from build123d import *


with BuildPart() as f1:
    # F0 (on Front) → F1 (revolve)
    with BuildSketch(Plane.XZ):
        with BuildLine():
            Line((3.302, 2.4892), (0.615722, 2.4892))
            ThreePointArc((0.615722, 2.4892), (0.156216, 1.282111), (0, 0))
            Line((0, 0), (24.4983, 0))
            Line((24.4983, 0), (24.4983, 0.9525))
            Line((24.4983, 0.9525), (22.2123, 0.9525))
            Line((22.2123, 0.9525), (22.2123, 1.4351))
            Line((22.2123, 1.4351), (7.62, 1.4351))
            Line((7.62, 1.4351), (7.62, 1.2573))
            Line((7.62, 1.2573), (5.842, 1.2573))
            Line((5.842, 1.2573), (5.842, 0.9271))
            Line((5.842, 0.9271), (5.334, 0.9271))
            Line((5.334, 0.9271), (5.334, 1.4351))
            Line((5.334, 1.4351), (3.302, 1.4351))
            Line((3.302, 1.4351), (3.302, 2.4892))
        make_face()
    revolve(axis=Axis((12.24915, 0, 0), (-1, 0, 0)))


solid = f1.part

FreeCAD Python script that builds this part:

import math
import FreeCAD as App
import Part
import Sketcher
from FreeCAD import Vector
Q = App.Units.Quantity

doc = App.newDocument("Part")
params = doc.addObject("Spreadsheet::Sheet", "Params")
for row, (alias, value) in enumerate([
    ("sketch1_width", "0.09 in"),
    ("sketch1_width2", "0.07 in"),
    ("sketch1_width3", "0.02 in"),
    ("sketch1_width4", "0.08 in"),
    ("sketch1_height", "0.019 in"),
    ("revolution_angle", "360 deg"),
], start=1):
    params.set(f"A{row}", alias)
    params.set(f"B{row}", "=" + value)
    params.setAlias(f"B{row}", alias)

body = doc.addObject("PartDesign::Body", "Body")

# Sketch on XZ plane
sketch1 = body.newObject("Sketcher::SketchObject", "Sketch")
sketch1.AttachmentSupport = (doc.getObject("XZ_Plane"), [""])
sketch1.MapMode = "FlatFace"
sketch1.addGeometry([
    Part.LineSegment(Vector(3.302, 2.4892, 0), Vector(0.615722, 2.4892, 0)),  # 0
    Part.ArcOfCircle(Part.Circle(Vector(5.339454, -0.000002, 0), Vector(0, 0, 1), 5.339454), math.radians(152.212716), math.radians(179.999983)),  # 1
    Part.LineSegment(Vector(0, 0, 0), Vector(24.4983, 0, 0)),  # 2
    Part.LineSegment(Vector(24.4983, 0, 0), Vector(24.4983, 0.9525, 0)),  # 3
    Part.LineSegment(Vector(24.4983, 0.9525, 0), Vector(22.2123, 0.9525, 0)),  # 4
    Part.LineSegment(Vector(22.2123, 0.9525, 0), Vector(22.2123, 1.4351, 0)),  # 5
    Part.LineSegment(Vector(22.2123, 1.4351, 0), Vector(7.62, 1.4351, 0)),  # 6
    Part.LineSegment(Vector(7.62, 1.4351, 0), Vector(7.62, 1.2573, 0)),  # 7
    Part.LineSegment(Vector(7.62, 1.2573, 0), Vector(5.842, 1.2573, 0)),  # 8
    Part.LineSegment(Vector(5.842, 1.2573, 0), Vector(5.842, 0.9271, 0)),  # 9
    Part.LineSegment(Vector(5.842, 0.9271, 0), Vector(5.334, 0.9271, 0)),  # 10
    Part.LineSegment(Vector(5.334, 0.9271, 0), Vector(5.334, 1.4351, 0)),  # 11
    Part.LineSegment(Vector(5.334, 1.4351, 0), Vector(3.302, 1.4351, 0)),  # 12
    Part.LineSegment(Vector(3.302, 1.4351, 0), Vector(3.302, 2.4892, 0)),  # 13
], False)
sketch1.addConstraint([
    Sketcher.Constraint("Coincident", 0, 2, 1, 1),
    Sketcher.Constraint("Coincident", 1, 2, 2, 1),
    Sketcher.Constraint("Coincident", 2, 2, 3, 1),
    Sketcher.Constraint("Coincident", 3, 2, 4, 1),
    Sketcher.Constraint("Coincident", 4, 2, 5, 1),
    Sketcher.Constraint("Coincident", 5, 2, 6, 1),
    Sketcher.Constraint("Coincident", 6, 2, 7, 1),
    Sketcher.Constraint("Coincident", 7, 2, 8, 1),
    Sketcher.Constraint("Coincident", 8, 2, 9, 1),
    Sketcher.Constraint("Coincident", 9, 2, 10, 1),
    Sketcher.Constraint("Coincident", 10, 2, 11, 1),
    Sketcher.Constraint("Coincident", 11, 2, 12, 1),
    Sketcher.Constraint("Coincident", 12, 2, 13, 1),
    Sketcher.Constraint("Coincident", 13, 2, 0, 1),
    Sketcher.Constraint("Horizontal", 0),
    Sketcher.Constraint("Horizontal", 2),
    Sketcher.Constraint("Vertical", 3),
    Sketcher.Constraint("Horizontal", 4),
    Sketcher.Constraint("Vertical", 5),
    Sketcher.Constraint("Horizontal", 6),
    Sketcher.Constraint("Vertical", 7),
    Sketcher.Constraint("Horizontal", 8),
    Sketcher.Constraint("Vertical", 9),
    Sketcher.Constraint("Horizontal", 10),
    Sketcher.Constraint("Vertical", 11),
    Sketcher.Constraint("Horizontal", 12),
    Sketcher.Constraint("Vertical", 13),
    Sketcher.Constraint("Coincident", 1, 2, -1, 1),
    Sketcher.Constraint("PointOnObject", 1, 3, -1),
    Sketcher.Constraint("Horizontal", 6, 2, 11, 2),
    Sketcher.Constraint("Equal", 10, 11),
    Sketcher.Constraint("DistanceX", 4, 2, 4, 1, Q("0.09 in")),
    Sketcher.Constraint("DistanceX", 8, 2, 8, 1, Q("0.07 in")),
    Sketcher.Constraint("DistanceX", 10, 2, 10, 1, Q("0.02 in")),
    Sketcher.Constraint("DistanceX", 12, 2, 12, 1, Q("0.08 in")),
    Sketcher.Constraint("DistanceX", -1, 1, 6, 2, Q("0.3 in")),
    Sketcher.Constraint("DistanceY", 5, 1, 5, 2, Q("0.019 in")),
    Sketcher.Constraint("DistanceY", 7, 2, 7, 1, Q("0.007 in")),
    Sketcher.Constraint("DistanceX", 2, 1, 2, 2, Q("0.9645 in")),
    Sketcher.Constraint("DistanceY", 3, 1, 3, 2, Q("0.0375 in")),
    Sketcher.Constraint("DistanceY", 13, 1, 13, 2, Q("0.0415 in")),
    Sketcher.Constraint("Radius", 1, Q("5.339454 mm")),
])
sketch1.setExpression("Constraints[31]", "Params.sketch1_width")
sketch1.setExpression("Constraints[32]", "Params.sketch1_width2")
sketch1.setExpression("Constraints[33]", "Params.sketch1_width3")
sketch1.setExpression("Constraints[34]", "Params.sketch1_width4")
sketch1.setExpression("Constraints[36]", "Params.sketch1_height")
revolution = body.newObject("PartDesign::Revolution", "Revolution")
revolution.Profile = sketch1
revolution.ReferenceAxis = (sketch1, ["H_Axis"])
revolution.setExpression("Angle", "Params.revolution_angle")

doc.recompute()
